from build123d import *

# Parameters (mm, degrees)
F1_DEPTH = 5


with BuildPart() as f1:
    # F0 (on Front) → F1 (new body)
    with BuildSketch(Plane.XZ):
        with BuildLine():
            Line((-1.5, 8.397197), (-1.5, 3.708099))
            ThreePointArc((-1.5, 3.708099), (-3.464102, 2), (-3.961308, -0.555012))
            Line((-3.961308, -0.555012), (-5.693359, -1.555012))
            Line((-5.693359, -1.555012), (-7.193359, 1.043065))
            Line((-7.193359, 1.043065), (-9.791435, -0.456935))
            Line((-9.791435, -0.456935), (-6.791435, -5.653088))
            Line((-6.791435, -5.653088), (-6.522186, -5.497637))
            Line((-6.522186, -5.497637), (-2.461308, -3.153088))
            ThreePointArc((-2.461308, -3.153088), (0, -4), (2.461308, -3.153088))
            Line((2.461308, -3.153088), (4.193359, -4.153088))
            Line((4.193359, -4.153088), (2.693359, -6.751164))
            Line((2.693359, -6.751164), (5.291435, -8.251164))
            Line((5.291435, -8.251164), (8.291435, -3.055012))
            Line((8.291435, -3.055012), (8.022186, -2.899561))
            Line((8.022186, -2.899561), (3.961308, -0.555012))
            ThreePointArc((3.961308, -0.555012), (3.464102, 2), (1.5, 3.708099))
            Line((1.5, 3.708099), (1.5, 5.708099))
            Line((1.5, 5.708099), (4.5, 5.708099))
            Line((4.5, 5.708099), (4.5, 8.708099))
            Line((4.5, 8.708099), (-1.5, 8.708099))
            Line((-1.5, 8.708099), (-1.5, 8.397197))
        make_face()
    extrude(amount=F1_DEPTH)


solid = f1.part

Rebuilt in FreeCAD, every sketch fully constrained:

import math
import FreeCAD as App
import Part
import Sketcher
Q = App.Units.Quantity

doc = App.newDocument("Part")
body = doc.addObject("PartDesign::Body", "Body")

# Sketch on XZ plane
sketch1 = doc.addObject("Sketcher::SketchObject", "Sketch")
body.addObject(sketch1)
sketch1.AttachmentSupport = (doc.XZ_Plane, [""])
sketch1.MapMode = "FlatFace"
sketch1.addGeometry([
    Part.ArcOfCircle(Part.Circle(App.Vector(0, 0, 0), App.Vector(0, 0, 1), 4), math.radians(112), math.radians(188)),  # 0
    Part.LineSegment(App.Vector(-3.96, -0.56, 0), App.Vector(-5.69, -1.56, 0)),  # 1
    Part.LineSegment(App.Vector(-5.69, -1.56, 0), App.Vector(-7.19, 1.04, 0)),  # 2
    Part.LineSegment(App.Vector(-7.19, 1.04, 0), App.Vector(-9.79, -0.46, 0)),  # 3
    Part.LineSegment(App.Vector(-9.79, -0.46, 0), App.Vector(-6.79, -5.65, 0)),  # 4
    Part.LineSegment(App.Vector(-6.79, -5.65, 0), App.Vector(-6.52, -5.5, 0)),  # 5
    Part.LineSegment(App.Vector(-6.52, -5.5, 0), App.Vector(-2.46, -3.15, 0)),  # 6
    Part.ArcOfCircle(Part.Circle(App.Vector(0, 0, 0), App.Vector(0, 0, 1), 4), math.radians(-128), math.radians(-52)),  # 7
    Part.LineSegment(App.Vector(2.46, -3.15, 0), App.Vector(4.19, -4.15, 0)),  # 8
    Part.LineSegment(App.Vector(4.19, -4.15, 0), App.Vector(2.69, -6.75, 0)),  # 9
    Part.LineSegment(App.Vector(2.69, -6.75, 0), App.Vector(5.29, -8.25, 0)),  # 10
    Part.LineSegment(App.Vector(5.29, -8.25, 0), App.Vector(8.29, -3.06, 0)),  # 11
    Part.LineSegment(App.Vector(8.29, -3.06, 0), App.Vector(8.02, -2.9, 0)),  # 12
    Part.LineSegment(App.Vector(8.02, -2.9, 0), App.Vector(3.96, -0.56, 0)),  # 13
    Part.ArcOfCircle(Part.Circle(App.Vector(0, 0, 0), App.Vector(0, 0, 1), 4), math.radians(-8), math.radians(68)),  # 14
    Part.LineSegment(App.Vector(1.5, 3.71, 0), App.Vector(1.5, 5.71, 0)),  # 15
    Part.LineSegment(App.Vector(1.5, 5.71, 0), App.Vector(4.5, 5.71, 0)),  # 16
    Part.LineSegment(App.Vector(4.5, 5.71, 0), App.Vector(4.5, 8.71, 0)),  # 17
    Part.LineSegment(App.Vector(4.5, 8.71, 0), App.Vector(-1.5, 8.71, 0)),  # 18
    Part.LineSegment(App.Vector(-1.5, 8.71, 0), App.Vector(-1.5, 3.71, 0)),  # 19
], False)
sketch1.addConstraint([
    Sketcher.Constraint("Coincident", 0, 2, 1, 1),
    Sketcher.Constraint("Coincident", 1, 2, 2, 1),
    Sketcher.Constraint("Coincident", 2, 2, 3, 1),
    Sketcher.Constraint("Coincident", 3, 2, 4, 1),
    Sketcher.Constraint("Coincident", 4, 2, 5, 1),
    Sketcher.Constraint("Coincident", 5, 2, 6, 1),
    Sketcher.Constraint("Coincident", 6, 2, 7, 1),
    Sketcher.Constraint("Coincident", 7, 2, 8, 1),
    Sketcher.Constraint("Coincident", 8, 2, 9, 1),
    Sketcher.Constraint("Coincident", 9, 2, 10, 1),
    Sketcher.Constraint("Coincident", 10, 2, 11, 1),
    Sketcher.Constraint("Coincident", 11, 2, 12, 1),
    Sketcher.Constraint("Coincident", 12, 2, 13, 1),
    Sketcher.Constraint("Coincident", 13, 2, 14, 1),
    Sketcher.Constraint("Coincident", 14, 2, 15, 1),
    Sketcher.Constraint("Coincident", 15, 2, 16, 1),
    Sketcher.Constraint("Coincident", 16, 2, 17, 1),
    Sketcher.Constraint("Coincident", 17, 2, 18, 1),
    Sketcher.Constraint("Coincident", 18, 2, 19, 1),
    Sketcher.Constraint("Coincident", 19, 2, 0, 1),
    Sketcher.Constraint("Vertical", 15),
    Sketcher.Constraint("Horizontal", 16),
    Sketcher.Constraint("Vertical", 17),
    Sketcher.Constraint("Horizontal", 18),
    Sketcher.Constraint("Vertical", 19),
    Sketcher.Constraint("Coincident", 0, 3, -1, 1),
    Sketcher.Constraint("Coincident", 7, 3, -1, 1),
    Sketcher.Constraint("Coincident", 14, 3, -1, 1),
    Sketcher.Constraint("Equal", 0, 14),
    Sketcher.Constraint("Perpendicular", 1, 2),
    Sketcher.Constraint("Perpendicular", 2, 3),
    Sketcher.Constraint("Perpendicular", 3, 4),
    Sketcher.Constraint("Perpendicular", 4, 5),
    Sketcher.Constraint("Parallel", 5, 6),
    Sketcher.Constraint("Perpendicular", 8, 9),
    Sketcher.Constraint("Perpendicular", 9, 10),
    Sketcher.Constraint("Perpendicular", 10, 11),
    Sketcher.Constraint("Perpendicular", 11, 12),
    Sketcher.Constraint("Parallel", 12, 13),
    Sketcher.Constraint("Horizontal", 6, 2, 7, 2),
    Sketcher.Constraint("Horizontal", 0, 2, 13, 2),
    Sketcher.Constraint("Horizontal", 14, 2, 19, 2),
    Sketcher.Constraint("Equal", 16, 17),
    Sketcher.Constraint("Equal", 2, 3),
    Sketcher.Constraint("Equal", 1, 8),
    Sketcher.Constraint("Equal", 3, 9),
    Sketcher.Constraint("Equal", 9, 10),
    Sketcher.Constraint("Equal", 5, 12),
    Sketcher.Constraint("Equal", 6, 13),
    Sketcher.Constraint("Radius", 0, 3.999998),
    Sketcher.Constraint("Radius", 7, 4.000001),
    Sketcher.Constraint("DistanceX", 16, 1, 16, 2, 3.0),
    Sketcher.Constraint("DistanceX", 18, 2, 18, 1, 6.0),
    Sketcher.Constraint("DistanceY", 15, 1, 15, 2, 2.0),
    Sketcher.Constraint("Angle", 1, Q("-150.000003 deg")),
    Sketcher.Constraint("Angle", 8, Q("-29.999997 deg")),
    Sketcher.Constraint("Distance", 1, 2.0),
    Sketcher.Constraint("Distance", 2, 3.000001),
    Sketcher.Constraint("Distance", 4, 6.0),
    Sketcher.Constraint("Distance", 5, 0.310902),
])
pad1 = doc.addObject("PartDesign::Pad", "Pad")
body.addObject(pad1)
pad1.Profile = sketch1
pad1.Length = 5

doc.recompute()
